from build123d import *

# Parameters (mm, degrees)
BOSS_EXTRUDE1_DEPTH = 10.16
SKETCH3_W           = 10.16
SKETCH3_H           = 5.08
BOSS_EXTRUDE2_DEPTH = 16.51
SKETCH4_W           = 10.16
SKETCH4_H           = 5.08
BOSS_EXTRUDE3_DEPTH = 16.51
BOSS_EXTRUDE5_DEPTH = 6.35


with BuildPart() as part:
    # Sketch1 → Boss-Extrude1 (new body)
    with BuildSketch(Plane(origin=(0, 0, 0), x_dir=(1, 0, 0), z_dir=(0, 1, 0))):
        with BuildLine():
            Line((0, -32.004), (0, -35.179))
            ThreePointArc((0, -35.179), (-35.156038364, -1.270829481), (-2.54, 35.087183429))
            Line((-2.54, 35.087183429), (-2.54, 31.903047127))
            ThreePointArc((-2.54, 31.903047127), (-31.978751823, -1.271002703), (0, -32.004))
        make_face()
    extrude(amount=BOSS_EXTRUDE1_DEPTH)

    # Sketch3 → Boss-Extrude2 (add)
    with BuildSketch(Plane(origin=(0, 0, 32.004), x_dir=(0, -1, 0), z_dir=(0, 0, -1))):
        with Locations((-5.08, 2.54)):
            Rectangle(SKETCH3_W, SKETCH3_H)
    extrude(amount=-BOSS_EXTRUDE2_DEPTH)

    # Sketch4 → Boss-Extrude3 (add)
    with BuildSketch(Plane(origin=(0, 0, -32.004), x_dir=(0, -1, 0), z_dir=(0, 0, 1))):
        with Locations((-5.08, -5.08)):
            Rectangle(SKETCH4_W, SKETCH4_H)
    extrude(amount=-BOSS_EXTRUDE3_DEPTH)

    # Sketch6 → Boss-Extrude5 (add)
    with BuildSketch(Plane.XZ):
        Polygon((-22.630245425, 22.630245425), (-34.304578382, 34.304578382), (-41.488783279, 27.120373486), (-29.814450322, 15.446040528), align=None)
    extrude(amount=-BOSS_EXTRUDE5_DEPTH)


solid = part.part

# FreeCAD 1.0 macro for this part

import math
import FreeCAD as App
import Part
import Sketcher
from FreeCAD import Vector
Q = App.Units.Quantity


def add_polygon(sketch, points):
    """Adds a closed chain of lines whose ends are joined by coincident constraints."""
    first, n = sketch.GeometryCount, len(points)
    for a, b in zip(points, points[1:] + points[:1]):
        sketch.addGeometry(Part.LineSegment(App.Vector(*a, 0), App.Vector(*b, 0)), False)
    for i in range(n):
        sketch.addConstraint(Sketcher.Constraint("Coincident", first + i, 2, first + (i + 1) % n, 1))

doc = App.newDocument("Part")
body = doc.addObject("PartDesign::Body", "Body")

# Sketch on XZ plane
sketch1 = doc.addObject("Sketcher::SketchObject", "Sketch")
body.addObject(sketch1)
sketch1.AttachmentSupport = (doc.XZ_Plane, [""])
sketch1.MapMode = "FlatFace"
sketch1.addGeometry([
    Part.LineSegment(Vector(0, 35.2, 0), Vector(0, 32, 0)),
    Part.ArcOfCircle(Part.Circle(Vector(0, 0, 0), Vector(0, 0, 1), 32), math.radians(90), math.radians(265)),
    Part.LineSegment(Vector(-2.5, -31.9, 0), Vector(-2.5, -35.1, 0)),
    Part.ArcOfCircle(Part.Circle(Vector(0, 0, 0), Vector(0, 0, 1), 35.2), math.radians(90), math.radians(266)),
], False)
sketch1.addConstraint([
    Sketcher.Constraint("Coincident", 0, 2, 1, 1),
    Sketcher.Constraint("Coincident", 1, 2, 2, 1),
    Sketcher.Constraint("Coincident", 2, 2, 3, 2),
    Sketcher.Constraint("Coincident", 3, 1, 0, 1),
    Sketcher.Constraint("Vertical", 0),
    Sketcher.Constraint("Vertical", 2),
    Sketcher.Constraint("Coincident", 1, 3, -1, 1),
    Sketcher.Constraint("Coincident", 3, 3, -1, 1),
    Sketcher.Constraint("PointOnObject", 0, 2, -2),
    Sketcher.Constraint("Radius", 1, Q("1.26 in")),
    Sketcher.Constraint("Radius", 3, Q("1.385 in")),
    Sketcher.Constraint("DistanceX", 1, 2, -1, 1, Q("0.1 in")),
])
pad1 = doc.addObject("PartDesign::Pad", "Pad")
body.addObject(pad1)
pad1.Profile = sketch1
pad1.Length = Q("0.4 in")
pad1.Reversed = True

# Sketch on XY plane
sketch2 = doc.addObject("Sketcher::SketchObject", "Sketch001")
body.addObject(sketch2)
sketch2.AttachmentSupport = (doc.XY_Plane, [""])
sketch2.MapMode = "FlatFace"
sketch2.AttachmentOffset = App.Placement(Vector(0, 0, 1.26 * 25.4), App.Rotation())
add_polygon(sketch2, [(-5, 10), (0, 10), (0, 0), (-5, 0)])  # lines 0-3
sketch2.addConstraint([
    Sketcher.Constraint("Horizontal", 0),
    Sketcher.Constraint("Vertical", 1),
    Sketcher.Constraint("Horizontal", 2),
    Sketcher.Constraint("Vertical", 3),
    Sketcher.Constraint("Coincident", 1, 2, -1, 1),
    Sketcher.Constraint("DistanceX", 0, 1, 0, 2, Q("0.2 in")),
    Sketcher.Constraint("DistanceY", 1, 2, 1, 1, Q("0.4 in")),
])
pad2 = doc.addObject("PartDesign::Pad", "Pad001")
body.addObject(pad2)
pad2.Profile = sketch2
pad2.Length = Q("0.65 in")

# Sketch on XY plane
sketch3 = doc.addObject("Sketcher::SketchObject", "Sketch002")
body.addObject(sketch3)
sketch3.AttachmentSupport = (doc.XY_Plane, [""])
sketch3.MapMode = "FlatFace"
sketch3.AttachmentOffset = App.Placement(Vector(0, 0, -1.26 * 25.4), App.Rotation())
add_polygon(sketch3, [(-3, 10), (-8, 10), (-8, 0), (-3, 0)])  # lines 0-3
sketch3.addConstraint([
    Sketcher.Constraint("Horizontal", 0),
    Sketcher.Constraint("Vertical", 1),
    Sketcher.Constraint("Horizontal", 2),
    Sketcher.Constraint("Vertical", 3),
    Sketcher.Constraint("PointOnObject", 1, 2, -1),
    Sketcher.Constraint("DistanceX", 0, 2, 0, 1, Q("0.2 in")),
    Sketcher.Constraint("DistanceY", 1, 2, 1, 1, Q("0.4 in")),
    Sketcher.Constraint("DistanceX", 0, 2, -1, 1, Q("0.3 in")),
])
pad3 = doc.addObject("PartDesign::Pad", "Pad002")
body.addObject(pad3)
pad3.Profile = sketch3
pad3.Length = Q("0.65 in")
pad3.Reversed = True

# Sketch on XZ plane
sketch4 = doc.addObject("Sketcher::SketchObject", "Sketch003")
body.addObject(sketch4)
sketch4.AttachmentSupport = (doc.XZ_Plane, [""])
sketch4.MapMode = "FlatFace"
add_polygon(sketch4, [(-23, 23), (-34, 34), (-41, 27), (-30, 15)])  # lines 0-3
sketch4.addConstraint([
    Sketcher.Constraint("Perpendicular", 0, 1),
    Sketcher.Constraint("Perpendicular", 1, 2),
    Sketcher.Constraint("Perpendicular", 2, 3),
    Sketcher.Constraint("Angle", 0, Q("135 deg")),
    Sketcher.Constraint("Distance", 1, Q("0.4 in")),
    Sketcher.Constraint("Distance", 0, Q("0.65 in")),
    Sketcher.Constraint("DistanceX", 0, 2, -1, 1, 34.304578),
    Sketcher.Constraint("DistanceY", -1, 1, 0, 2, 34.304578),
])
pad4 = doc.addObject("PartDesign::Pad", "Pad003")
body.addObject(pad4)
pad4.Profile = sketch4
pad4.Length = Q("0.25 in")
pad4.Reversed = True

doc.recompute()
